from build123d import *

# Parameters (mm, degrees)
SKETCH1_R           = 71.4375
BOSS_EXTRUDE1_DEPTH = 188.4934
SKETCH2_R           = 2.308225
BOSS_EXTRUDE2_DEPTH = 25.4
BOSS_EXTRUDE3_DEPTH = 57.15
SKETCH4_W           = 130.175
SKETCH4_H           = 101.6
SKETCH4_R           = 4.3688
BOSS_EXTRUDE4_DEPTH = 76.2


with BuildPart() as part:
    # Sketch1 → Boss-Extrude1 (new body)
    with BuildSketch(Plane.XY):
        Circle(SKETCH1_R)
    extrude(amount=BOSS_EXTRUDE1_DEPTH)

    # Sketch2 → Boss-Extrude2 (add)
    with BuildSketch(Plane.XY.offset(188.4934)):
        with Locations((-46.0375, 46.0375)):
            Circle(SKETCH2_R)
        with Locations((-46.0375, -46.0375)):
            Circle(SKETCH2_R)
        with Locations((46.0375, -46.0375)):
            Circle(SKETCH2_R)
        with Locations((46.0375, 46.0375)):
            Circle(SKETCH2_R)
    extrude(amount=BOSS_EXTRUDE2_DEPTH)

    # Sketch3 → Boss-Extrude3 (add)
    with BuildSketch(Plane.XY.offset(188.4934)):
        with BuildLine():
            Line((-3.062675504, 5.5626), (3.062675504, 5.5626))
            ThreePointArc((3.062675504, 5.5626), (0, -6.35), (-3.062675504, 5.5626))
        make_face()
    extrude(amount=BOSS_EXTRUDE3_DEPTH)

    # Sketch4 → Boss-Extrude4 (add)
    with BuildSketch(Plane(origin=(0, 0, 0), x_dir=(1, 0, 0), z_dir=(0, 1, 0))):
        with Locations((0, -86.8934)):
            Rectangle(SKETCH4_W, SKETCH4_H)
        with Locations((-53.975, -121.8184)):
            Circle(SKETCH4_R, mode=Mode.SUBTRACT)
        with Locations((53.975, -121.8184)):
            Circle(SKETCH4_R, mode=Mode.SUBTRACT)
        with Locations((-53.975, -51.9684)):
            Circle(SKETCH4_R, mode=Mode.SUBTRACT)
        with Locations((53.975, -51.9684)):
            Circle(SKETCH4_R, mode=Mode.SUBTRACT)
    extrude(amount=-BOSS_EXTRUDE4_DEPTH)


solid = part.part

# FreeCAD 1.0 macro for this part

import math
import FreeCAD as App
import Part
import Sketcher
from FreeCAD import Vector
Q = App.Units.Quantity

doc = App.newDocument("Part")
body = doc.addObject("PartDesign::Body", "Body")

# Sketch on XY plane
sketch1 = doc.addObject("Sketcher::SketchObject", "Sketch")
body.addObject(sketch1)
sketch1.AttachmentSupport = (doc.XY_Plane, [""])
sketch1.MapMode = "FlatFace"
sketch1.addGeometry(Part.Circle(Vector(0, 0, 0), Vector(0, 0, 1), 71.4375), False)
sketch1.addConstraint(Sketcher.Constraint("Coincident", 0, 3, -1, 1))
sketch1.addConstraint(Sketcher.Constraint("Diameter", 0, Q("5.625 in")))
pad1 = doc.addObject("PartDesign::Pad", "Pad")
body.addObject(pad1)
pad1.Profile = sketch1
pad1.Length = Q("7.421 in")

# Sketch on XY plane
sketch2 = doc.addObject("Sketcher::SketchObject", "Sketch001")
body.addObject(sketch2)
sketch2.AttachmentSupport = (doc.XY_Plane, [""])
sketch2.MapMode = "FlatFace"
sketch2.AttachmentOffset = App.Placement(Vector(0, 0, 7.421 * 25.4), App.Rotation())
sketch2.addGeometry(Part.Circle(Vector(-46.0375, 46.0375, 0), Vector(0, 0, 1), 2.308225), False)
sketch2.addGeometry(Part.Circle(Vector(-46.0375, -46.0375, 0), Vector(0, 0, 1), 2.308225), False)
sketch2.addGeometry(Part.Circle(Vector(46.0375, -46.0375, 0), Vector(0, 0, 1), 2.308225), False)
sketch2.addGeometry(Part.Circle(Vector(46.0375, 46.0375, 0), Vector(0, 0, 1), 2.308225), False)
sketch2.addConstraint(Sketcher.Constraint("Equal", 0, 1))
sketch2.addConstraint(Sketcher.Constraint("Equal", 1, 2))
sketch2.addConstraint(Sketcher.Constraint("Equal", 2, 3))
sketch2.addConstraint(Sketcher.Constraint("Symmetric", 0, 3, 2, 3, -1, 1))
sketch2.addConstraint(Sketcher.Constraint("Symmetric", 1, 3, 3, 3, -1, 1))
sketch2.addConstraint(Sketcher.Constraint("Symmetric", 1, 3, 2, 3, -2))
sketch2.addConstraint(Sketcher.Constraint("Diameter", 0, Q("4.61645 mm")))
sketch2.addConstraint(Sketcher.Constraint("DistanceX", 0, 3, -1, 1, Q("1.8125 in")))
sketch2.addConstraint(Sketcher.Constraint("DistanceY", -1, 1, 0, 3, Q("1.8125 in")))
pad2 = doc.addObject("PartDesign::Pad", "Pad001")
body.addObject(pad2)
pad2.Profile = sketch2
pad2.Length = Q("1 in")

# Sketch on XY plane
sketch3 = doc.addObject("Sketcher::SketchObject", "Sketch002")
body.addObject(sketch3)
sketch3.AttachmentSupport = (doc.XY_Plane, [""])
sketch3.MapMode = "FlatFace"
sketch3.AttachmentOffset = App.Placement(Vector(0, 0, 7.421 * 25.4), App.Rotation())
sketch3.addGeometry(Part.LineSegment(Vector(3.062676, 5.5626, 0), Vector(-3.062676, 5.5626, 0)), False)
sketch3.addGeometry(Part.ArcOfCircle(Part.Circle(Vector(0, 0, 0), Vector(0, 0, 1), 6.35), math.radians(118.836453), math.radians(421.163547)), False)
sketch3.addConstraint(Sketcher.Constraint("Coincident", 0, 1, 1, 2))
sketch3.addConstraint(Sketcher.Constraint("Coincident", 1, 1, 0, 2))
sketch3.addConstraint(Sketcher.Constraint("Horizontal", 0))
sketch3.addConstraint(Sketcher.Constraint("Coincident", 1, 3, -1, 1))
sketch3.addConstraint(Sketcher.Constraint("Radius", 1, Q("0.25 in")))
sketch3.addConstraint(Sketcher.Constraint("DistanceY", -1, 1, 0, 1, Q("0.219 in")))
pad3 = doc.addObject("PartDesign::Pad", "Pad002")
body.addObject(pad3)
pad3.Profile = sketch3
pad3.Length = Q("2.25 in")

# Sketch on XZ plane
sketch4 = doc.addObject("Sketcher::SketchObject", "Sketch003")
body.addObject(sketch4)
sketch4.AttachmentSupport = (doc.XZ_Plane, [""])
sketch4.MapMode = "FlatFace"
sketch4.addGeometry(Part.LineSegment(Vector(-65.0875, 36.0934, 0), Vector(-65.0875, 137.6934, 0)), False)
sketch4.addGeometry(Part.LineSegment(Vector(-65.0875, 137.6934, 0), Vector(65.0875, 137.6934, 0)), False)
sketch4.addGeometry(Part.LineSegment(Vector(65.0875, 137.6934, 0), Vector(65.0875, 36.0934, 0)), False)
sketch4.addGeometry(Part.LineSegment(Vector(65.0875, 36.0934, 0), Vector(-65.0875, 36.0934, 0)), False)
sketch4.addGeometry(Part.Circle(Vector(-53.975, 121.8184, 0), Vector(0, 0, 1), 4.3688), False)
sketch4.addGeometry(Part.Circle(Vector(53.975, 121.8184, 0), Vector(0, 0, 1), 4.3688), False)
sketch4.addGeometry(Part.Circle(Vector(-53.975, 51.9684, 0), Vector(0, 0, 1), 4.3688), False)
sketch4.addGeometry(Part.Circle(Vector(53.975, 51.9684, 0), Vector(0, 0, 1), 4.3688), False)
sketch4.addConstraint(Sketcher.Constraint("Coincident", 0, 2, 1, 1))
sketch4.addConstraint(Sketcher.Constraint("Coincident", 1, 2, 2, 1))
sketch4.addConstraint(Sketcher.Constraint("Coincident", 2, 2, 3, 1))
sketch4.addConstraint(Sketcher.Constraint("Coincident", 3, 2, 0, 1))
sketch4.addConstraint(Sketcher.Constraint("Vertical", 0))
sketch4.addConstraint(Sketcher.Constraint("Horizontal", 1))
sketch4.addConstraint(Sketcher.Constraint("Vertical", 2))
sketch4.addConstraint(Sketcher.Constraint("Horizontal", 3))
sketch4.addConstraint(Sketcher.Constraint("Equal", 4, 5))
sketch4.addConstraint(Sketcher.Constraint("Equal", 5, 6))
sketch4.addConstraint(Sketcher.Constraint("Equal", 6, 7))
sketch4.addConstraint(Sketcher.Constraint("Symmetric", 4, 3, 5, 3, -2))
sketch4.addConstraint(Sketcher.Constraint("Symmetric", 6, 3, 7, 3, -2))
sketch4.addConstraint(Sketcher.Constraint("Vertical", 4, 3, 6, 3))
sketch4.addConstraint(Sketcher.Constraint("DistanceY", 0, 1, 0, 2, Q("4 in")))
sketch4.addConstraint(Sketcher.Constraint("Diameter", 4, Q("0.344 in")))
sketch4.addConstraint(Sketcher.Constraint("DistanceX", 1, 1, 1, 2, Q("5.125 in")))
sketch4.addConstraint(Sketcher.Constraint("DistanceX", 4, 3, 5, 3, Q("4.25 in")))
sketch4.addConstraint(Sketcher.Constraint("DistanceY", 6, 3, 4, 3, Q("2.75 in")))
sketch4.addConstraint(Sketcher.Constraint("DistanceY", -1, 1, 4, 3, Q("4.796 in")))
sketch4.addConstraint(Sketcher.Constraint("DistanceX", 0, 2, -1, 1, Q("2.5625 in")))
sketch4.addConstraint(Sketcher.Constraint("DistanceY", -1, 1, 0, 2, Q("5.421 in")))
pad4 = doc.addObject("PartDesign::Pad", "Pad003")
body.addObject(pad4)
pad4.Profile = sketch4
pad4.Length = Q("3 in")

doc.recompute()
